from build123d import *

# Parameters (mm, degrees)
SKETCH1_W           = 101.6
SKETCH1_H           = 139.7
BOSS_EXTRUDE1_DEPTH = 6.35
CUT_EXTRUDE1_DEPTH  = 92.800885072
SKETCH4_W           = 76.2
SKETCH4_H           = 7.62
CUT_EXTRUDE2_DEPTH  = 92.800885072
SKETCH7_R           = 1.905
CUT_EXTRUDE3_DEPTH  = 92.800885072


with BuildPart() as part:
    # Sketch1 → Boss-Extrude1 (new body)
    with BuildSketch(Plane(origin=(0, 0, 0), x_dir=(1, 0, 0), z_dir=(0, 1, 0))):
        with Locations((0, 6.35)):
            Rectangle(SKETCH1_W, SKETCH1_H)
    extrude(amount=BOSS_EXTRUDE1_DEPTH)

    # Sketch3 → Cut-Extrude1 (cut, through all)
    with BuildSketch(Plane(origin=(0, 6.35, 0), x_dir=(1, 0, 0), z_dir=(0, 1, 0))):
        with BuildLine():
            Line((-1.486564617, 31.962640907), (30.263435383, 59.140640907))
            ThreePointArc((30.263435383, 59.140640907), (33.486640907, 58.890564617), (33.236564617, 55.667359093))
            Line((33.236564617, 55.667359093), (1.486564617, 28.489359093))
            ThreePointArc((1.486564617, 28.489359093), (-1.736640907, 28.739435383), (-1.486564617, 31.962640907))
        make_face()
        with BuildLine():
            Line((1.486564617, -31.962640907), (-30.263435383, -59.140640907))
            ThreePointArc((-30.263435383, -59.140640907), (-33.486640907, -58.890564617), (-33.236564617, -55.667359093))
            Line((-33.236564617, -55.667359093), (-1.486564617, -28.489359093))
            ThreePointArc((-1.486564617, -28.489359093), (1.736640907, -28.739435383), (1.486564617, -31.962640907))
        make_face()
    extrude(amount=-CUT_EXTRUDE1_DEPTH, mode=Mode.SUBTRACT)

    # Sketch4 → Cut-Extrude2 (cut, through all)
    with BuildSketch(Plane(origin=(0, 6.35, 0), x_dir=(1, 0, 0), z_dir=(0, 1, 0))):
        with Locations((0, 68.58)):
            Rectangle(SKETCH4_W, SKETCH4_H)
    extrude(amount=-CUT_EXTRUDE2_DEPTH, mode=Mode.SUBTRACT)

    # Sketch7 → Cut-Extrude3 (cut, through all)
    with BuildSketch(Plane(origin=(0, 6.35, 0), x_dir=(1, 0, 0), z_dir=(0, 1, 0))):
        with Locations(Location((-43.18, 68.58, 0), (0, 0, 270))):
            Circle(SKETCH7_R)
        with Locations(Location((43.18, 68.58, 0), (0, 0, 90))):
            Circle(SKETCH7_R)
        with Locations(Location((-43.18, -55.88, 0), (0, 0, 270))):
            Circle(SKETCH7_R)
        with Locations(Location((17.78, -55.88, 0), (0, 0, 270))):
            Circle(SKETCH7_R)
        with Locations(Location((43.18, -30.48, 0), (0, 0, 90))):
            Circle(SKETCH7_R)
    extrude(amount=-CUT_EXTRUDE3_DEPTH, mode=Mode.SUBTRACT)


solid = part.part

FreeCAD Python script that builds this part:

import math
import FreeCAD as App
import Part
import Sketcher
from FreeCAD import Vector
Q = App.Units.Quantity

doc = App.newDocument("Part")
params = doc.addObject("Spreadsheet::Sheet", "Params")
for row, (alias, value) in enumerate([
    ("sketch1_width", "4 in"),
    ("sketch1_height", "5.5 in"),
    ("pad1_length", "0.25 in"),
    ("sketch2_radius", "0.09 in"),
    ("sketch3_width", "3 in"),
    ("sketch3_height", "0.3 in"),
    ("sketch4_diameter", "0.15 in"),
], start=1):
    params.set(f"A{row}", alias)
    params.set(f"B{row}", "=" + value)
    params.setAlias(f"B{row}", alias)

body = doc.addObject("PartDesign::Body", "Body")

# Sketch on XZ plane
sketch1 = body.newObject("Sketcher::SketchObject", "Sketch")
sketch1.AttachmentSupport = (doc.getObject("XZ_Plane"), [""])
sketch1.MapMode = "FlatFace"
sketch1.addGeometry(Part.LineSegment(Vector(-50.8, -76.2, 0), Vector(-50.8, 63.5, 0)), False)
sketch1.addGeometry(Part.LineSegment(Vector(-50.8, 63.5, 0), Vector(50.8, 63.5, 0)), False)
sketch1.addGeometry(Part.LineSegment(Vector(50.8, 63.5, 0), Vector(50.8, -76.2, 0)), False)
sketch1.addGeometry(Part.LineSegment(Vector(50.8, -76.2, 0), Vector(-50.8, -76.2, 0)), False)
sketch1.addConstraint(Sketcher.Constraint("Coincident", 0, 2, 1, 1))
sketch1.addConstraint(Sketcher.Constraint("Coincident", 1, 2, 2, 1))
sketch1.addConstraint(Sketcher.Constraint("Coincident", 2, 2, 3, 1))
sketch1.addConstraint(Sketcher.Constraint("Coincident", 3, 2, 0, 1))
sketch1.addConstraint(Sketcher.Constraint("Vertical", 0))
sketch1.addConstraint(Sketcher.Constraint("Horizontal", 1))
sketch1.addConstraint(Sketcher.Constraint("Vertical", 2))
sketch1.addConstraint(Sketcher.Constraint("Horizontal", 3))
sketch1.addConstraint(Sketcher.Constraint("DistanceX", 1, 1, 1, 2, Q("4 in")))
sketch1.addConstraint(Sketcher.Constraint("DistanceY", 0, 1, 0, 2, Q("5.5 in")))
sketch1.addConstraint(Sketcher.Constraint("DistanceX", 0, 2, -1, 1, Q("2 in")))
sketch1.addConstraint(Sketcher.Constraint("DistanceY", 2, 2, -1, 1, Q("3 in")))
sketch1.setExpression("Constraints[8]", "Params.sketch1_width")
sketch1.setExpression("Constraints[9]", "Params.sketch1_height")
pad1 = body.newObject("PartDesign::Pad", "Pad")
pad1.Profile = sketch1
pad1.setExpression("Length", "Params.pad1_length")
pad1.Reversed = True

# Sketch on XZ plane
sketch2 = body.newObject("Sketcher::SketchObject", "Sketch001")
sketch2.AttachmentSupport = (doc.getObject("XZ_Plane"), [""])
sketch2.MapMode = "FlatFace"
sketch2.AttachmentOffset = App.Placement(Vector(0, 0, -0.25 * 25.4), App.Rotation())
sketch2.addGeometry(Part.LineSegment(Vector(30.263435, -59.140641, 0), Vector(-1.486565, -31.962641, 0)), False)
sketch2.addGeometry(Part.ArcOfCircle(Part.Circle(Vector(0, -30.226, 0), Vector(0, 0, 1), 2.286), math.radians(49.436474), math.radians(229.436474)), False)
sketch2.addGeometry(Part.LineSegment(Vector(1.486565, -28.489359, 0), Vector(33.236565, -55.667359, 0)), False)
sketch2.addGeometry(Part.ArcOfCircle(Part.Circle(Vector(31.75, -57.404, 0), Vector(0, 0, 1), 2.286), math.radians(-130.563526), math.radians(49.436474)), False)
sketch2.addGeometry(Part.LineSegment(Vector(-30.263435, 59.140641, 0), Vector(1.486565, 31.962641, 0)), False)
sketch2.addGeometry(Part.ArcOfCircle(Part.Circle(Vector(0, 30.226, 0), Vector(0, 0, 1), 2.286), math.radians(-130.563526), math.radians(49.436474)), False)
sketch2.addGeometry(Part.LineSegment(Vector(-1.486565, 28.489359, 0), Vector(-33.236565, 55.667359, 0)), False)
sketch2.addGeometry(Part.ArcOfCircle(Part.Circle(Vector(-31.75, 57.404, 0), Vector(0, 0, 1), 2.286), math.radians(49.436474), math.radians(229.436474)), False)
sketch2.addConstraint(Sketcher.Constraint("Tangent", 0, 2, 1, 2))
sketch2.addConstraint(Sketcher.Constraint("Tangent", 1, 1, 2, 1))
sketch2.addConstraint(Sketcher.Constraint("Tangent", 2, 2, 3, 2))
sketch2.addConstraint(Sketcher.Constraint("Tangent", 3, 1, 0, 1))
sketch2.addConstraint(Sketcher.Constraint("Tangent", 4, 2, 5, 2))
sketch2.addConstraint(Sketcher.Constraint("Tangent", 5, 1, 6, 1))
sketch2.addConstraint(Sketcher.Constraint("Tangent", 6, 2, 7, 2))
sketch2.addConstraint(Sketcher.Constraint("Tangent", 7, 1, 4, 1))
sketch2.addConstraint(Sketcher.Constraint("Equal", 1, 3))
sketch2.addConstraint(Sketcher.Constraint("Equal", 3, 5))
sketch2.addConstraint(Sketcher.Constraint("Equal", 5, 7))
sketch2.addConstraint(Sketcher.Constraint("Symmetric", 1, 3, 5, 3, -1, 1))
sketch2.addConstraint(Sketcher.Constraint("Symmetric", 3, 3, 7, 3, -1, 1))
sketch2.addConstraint(Sketcher.Constraint("PointOnObject", 1, 3, -2))
sketch2.addConstraint(Sketcher.Constraint("Radius", 1, Q("0.09 in")))
sketch2.addConstraint(Sketcher.Constraint("DistanceX", 7, 3, 3, 3, Q("2.5 in")))
sketch2.addConstraint(Sketcher.Constraint("DistanceY", 1, 3, -1, 1, Q("1.19 in")))
sketch2.addConstraint(Sketcher.Constraint("DistanceY", 3, 3, -1, 1, Q("2.26 in")))
sketch2.setExpression("Constraints[14]", "Params.sketch2_radius")
pocket1 = body.newObject("PartDesign::Pocket", "Pocket")
pocket1.Profile = sketch2
pocket1.Type = "ThroughAll"
pocket1.Reversed = True

# Sketch on XZ plane
sketch3 = body.newObject("Sketcher::SketchObject", "Sketch002")
sketch3.AttachmentSupport = (doc.getObject("XZ_Plane"), [""])
sketch3.MapMode = "FlatFace"
sketch3.AttachmentOffset = App.Placement(Vector(0, 0, -0.25 * 25.4), App.Rotation())
sketch3.addGeometry(Part.LineSegment(Vector(-38.1, -72.39, 0), Vector(-38.1, -64.77, 0)), False)
sketch3.addGeometry(Part.LineSegment(Vector(-38.1, -64.77, 0), Vector(38.1, -64.77, 0)), False)
sketch3.addGeometry(Part.LineSegment(Vector(38.1, -64.77, 0), Vector(38.1, -72.39, 0)), False)
sketch3.addGeometry(Part.LineSegment(Vector(38.1, -72.39, 0), Vector(-38.1, -72.39, 0)), False)
sketch3.addConstraint(Sketcher.Constraint("Coincident", 0, 2, 1, 1))
sketch3.addConstraint(Sketcher.Constraint("Coincident", 1, 2, 2, 1))
sketch3.addConstraint(Sketcher.Constraint("Coincident", 2, 2, 3, 1))
sketch3.addConstraint(Sketcher.Constraint("Coincident", 3, 2, 0, 1))
sketch3.addConstraint(Sketcher.Constraint("Vertical", 0))
sketch3.addConstraint(Sketcher.Constraint("Horizontal", 1))
sketch3.addConstraint(Sketcher.Constraint("Vertical", 2))
sketch3.addConstraint(Sketcher.Constraint("Horizontal", 3))
sketch3.addConstraint(Sketcher.Constraint("DistanceX", 1, 1, 1, 2, Q("3 in")))
sketch3.addConstraint(Sketcher.Constraint("DistanceY", 0, 1, 0, 2, Q("0.3 in")))
sketch3.addConstraint(Sketcher.Constraint("DistanceX", 0, 2, -1, 1, Q("1.5 in")))
sketch3.addConstraint(Sketcher.Constraint("DistanceY", 0, 2, -1, 1, Q("2.55 in")))
sketch3.setExpression("Constraints[8]", "Params.sketch3_width")
sketch3.setExpression("Constraints[9]", "Params.sketch3_height")
pocket2 = body.newObject("PartDesign::Pocket", "Pocket001")
pocket2.Profile = sketch3
pocket2.Type = "ThroughAll"
pocket2.Reversed = True

# Sketch on XZ plane
sketch4 = body.newObject("Sketcher::SketchObject", "Sketch003")
sketch4.AttachmentSupport = (doc.getObject("XZ_Plane"), [""])
sketch4.MapMode = "FlatFace"
sketch4.AttachmentOffset = App.Placement(Vector(0, 0, -0.25 * 25.4), App.Rotation())
sketch4.addGeometry(Part.Circle(Vector(-43.18, -68.58, 0), Vector(0, 0, 1), 1.905), False)
sketch4.addGeometry(Part.Circle(Vector(43.18, -68.58, 0), Vector(0, 0, 1), 1.905), False)
sketch4.addGeometry(Part.Circle(Vector(-43.18, 55.88, 0), Vector(0, 0, 1), 1.905), False)
sketch4.addGeometry(Part.Circle(Vector(17.78, 55.88, 0), Vector(0, 0, 1), 1.905), False)
sketch4.addGeometry(Part.Circle(Vector(43.18, 30.48, 0), Vector(0, 0, 1), 1.905), False)
sketch4.addConstraint(Sketcher.Constraint("Equal", 0, 1))
sketch4.addConstraint(Sketcher.Constraint("Equal", 1, 2))
sketch4.addConstraint(Sketcher.Constraint("Equal", 2, 3))
sketch4.addConstraint(Sketcher.Constraint("Equal", 3, 4))
sketch4.addConstraint(Sketcher.Constraint("Symmetric", 0, 3, 1, 3, -2))
sketch4.addConstraint(Sketcher.Constraint("Horizontal", 2, 3, 3, 3))
sketch4.addConstraint(Sketcher.Constraint("Vertical", 0, 3, 2, 3))
sketch4.addConstraint(Sketcher.Constraint("Vertical", 1, 3, 4, 3))
sketch4.addConstraint(Sketcher.Constraint("Diameter", 0, Q("0.15 in")))
sketch4.addConstraint(Sketcher.Constraint("DistanceX", 3, 3, 1, 3, Q("1 in")))
sketch4.addConstraint(Sketcher.Constraint("DistanceY", 4, 3, 3, 3, Q("1 in")))
sketch4.addConstraint(Sketcher.Constraint("DistanceX", 0, 3, -1, 1, Q("1.7 in")))
sketch4.addConstraint(Sketcher.Constraint("DistanceY", 0, 3, -1, 1, Q("2.7 in")))
sketch4.addConstraint(Sketcher.Constraint("DistanceY", -1, 1, 2, 3, Q("2.2 in")))
sketch4.setExpression("Constraints[8]", "Params.sketch4_diameter")
pocket3 = body.newObject("PartDesign::Pocket", "Pocket002")
pocket3.Profile = sketch4
pocket3.Type = "ThroughAll"
pocket3.Reversed = True

doc.recompute()
